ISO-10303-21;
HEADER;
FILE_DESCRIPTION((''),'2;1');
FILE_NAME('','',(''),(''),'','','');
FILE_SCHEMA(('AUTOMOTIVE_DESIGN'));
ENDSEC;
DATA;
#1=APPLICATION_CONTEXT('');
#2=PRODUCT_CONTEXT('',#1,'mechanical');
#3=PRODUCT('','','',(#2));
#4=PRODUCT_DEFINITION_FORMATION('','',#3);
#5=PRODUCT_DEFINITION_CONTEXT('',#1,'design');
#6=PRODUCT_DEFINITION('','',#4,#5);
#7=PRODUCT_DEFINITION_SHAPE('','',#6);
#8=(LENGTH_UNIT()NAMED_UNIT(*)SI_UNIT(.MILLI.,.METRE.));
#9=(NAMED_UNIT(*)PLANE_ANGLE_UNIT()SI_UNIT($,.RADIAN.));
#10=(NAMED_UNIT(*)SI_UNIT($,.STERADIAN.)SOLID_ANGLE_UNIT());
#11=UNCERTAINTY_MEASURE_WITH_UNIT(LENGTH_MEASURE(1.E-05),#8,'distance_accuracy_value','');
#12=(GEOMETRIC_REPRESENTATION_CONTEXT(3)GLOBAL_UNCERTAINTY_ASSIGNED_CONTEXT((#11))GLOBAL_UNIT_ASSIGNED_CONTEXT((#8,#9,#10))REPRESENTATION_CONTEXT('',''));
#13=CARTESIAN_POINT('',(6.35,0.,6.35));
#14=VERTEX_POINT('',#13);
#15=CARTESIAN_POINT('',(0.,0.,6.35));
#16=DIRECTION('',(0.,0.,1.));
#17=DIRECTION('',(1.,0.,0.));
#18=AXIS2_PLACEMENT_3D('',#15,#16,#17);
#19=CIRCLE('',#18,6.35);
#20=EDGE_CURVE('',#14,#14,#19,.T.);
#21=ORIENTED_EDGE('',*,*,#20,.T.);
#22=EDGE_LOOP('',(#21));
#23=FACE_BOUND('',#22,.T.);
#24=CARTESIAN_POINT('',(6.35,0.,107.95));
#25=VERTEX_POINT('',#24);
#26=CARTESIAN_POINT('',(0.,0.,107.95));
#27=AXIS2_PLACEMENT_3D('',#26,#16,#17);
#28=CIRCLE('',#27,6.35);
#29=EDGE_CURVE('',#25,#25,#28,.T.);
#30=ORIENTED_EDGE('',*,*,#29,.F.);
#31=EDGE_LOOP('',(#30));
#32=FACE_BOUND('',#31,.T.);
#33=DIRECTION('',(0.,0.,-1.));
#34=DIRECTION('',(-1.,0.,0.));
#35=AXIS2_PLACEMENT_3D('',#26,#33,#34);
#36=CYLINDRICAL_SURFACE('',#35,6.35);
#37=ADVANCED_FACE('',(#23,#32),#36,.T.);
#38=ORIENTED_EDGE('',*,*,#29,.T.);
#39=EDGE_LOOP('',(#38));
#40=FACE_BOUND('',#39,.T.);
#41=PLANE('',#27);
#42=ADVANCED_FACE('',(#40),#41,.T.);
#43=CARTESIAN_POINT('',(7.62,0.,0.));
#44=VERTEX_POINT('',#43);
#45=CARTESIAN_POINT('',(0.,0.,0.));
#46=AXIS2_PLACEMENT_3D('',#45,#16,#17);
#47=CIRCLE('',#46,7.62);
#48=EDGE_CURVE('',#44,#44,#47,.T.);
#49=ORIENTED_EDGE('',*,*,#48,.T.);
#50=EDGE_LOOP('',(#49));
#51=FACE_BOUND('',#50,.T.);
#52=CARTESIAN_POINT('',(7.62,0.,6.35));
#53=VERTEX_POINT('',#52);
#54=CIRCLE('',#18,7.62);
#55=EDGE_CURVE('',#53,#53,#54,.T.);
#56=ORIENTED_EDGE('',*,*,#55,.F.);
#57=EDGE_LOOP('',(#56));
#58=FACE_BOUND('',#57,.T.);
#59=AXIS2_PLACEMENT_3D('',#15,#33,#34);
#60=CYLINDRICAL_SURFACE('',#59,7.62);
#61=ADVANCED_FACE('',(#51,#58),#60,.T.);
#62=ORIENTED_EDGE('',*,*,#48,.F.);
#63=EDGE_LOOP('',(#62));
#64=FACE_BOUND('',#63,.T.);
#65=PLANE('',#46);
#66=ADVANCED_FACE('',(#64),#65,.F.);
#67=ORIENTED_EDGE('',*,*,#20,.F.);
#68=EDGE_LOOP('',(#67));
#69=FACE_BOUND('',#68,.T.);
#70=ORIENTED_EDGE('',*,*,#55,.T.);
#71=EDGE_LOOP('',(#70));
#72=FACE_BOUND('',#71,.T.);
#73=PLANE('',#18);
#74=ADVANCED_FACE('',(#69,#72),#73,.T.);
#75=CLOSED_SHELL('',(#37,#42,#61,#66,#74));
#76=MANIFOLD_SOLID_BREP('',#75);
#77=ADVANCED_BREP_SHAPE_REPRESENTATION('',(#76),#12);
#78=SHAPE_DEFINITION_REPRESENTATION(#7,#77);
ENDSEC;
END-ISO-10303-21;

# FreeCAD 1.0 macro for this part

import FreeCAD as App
import Part
import Sketcher
from FreeCAD import Vector
Q = App.Units.Quantity

doc = App.newDocument("Part")
body = doc.addObject("PartDesign::Body", "Body")

# Sketch on XY plane
sketch1 = body.newObject("Sketcher::SketchObject", "Sketch")
sketch1.AttachmentSupport = (doc.getObject("XY_Plane"), [""])
sketch1.MapMode = "FlatFace"
sketch1.addGeometry(Part.Circle(Vector(0, 0, 0), Vector(0, 0, 1), 7.62), False)
sketch1.addConstraint([
    Sketcher.Constraint("Coincident", 0, 3, -1, 1),
    Sketcher.Constraint("Diameter", 0, Q("0.6 in")),
])
pad1 = body.newObject("PartDesign::Pad", "Pad")
pad1.Profile = sketch1
pad1.Length = Q("0.25 in")

# Sketch on XY plane
sketch2 = body.newObject("Sketcher::SketchObject", "Sketch001")
sketch2.AttachmentSupport = (doc.getObject("XY_Plane"), [""])
sketch2.MapMode = "FlatFace"
sketch2.AttachmentOffset = App.Placement(Vector(0, 0, 0.25 * 25.4), App.Rotation())
sketch2.addGeometry(Part.Circle(Vector(0, 0, 0), Vector(0, 0, 1), 6.35), False)
sketch2.addConstraint([
    Sketcher.Constraint("Coincident", 0, 3, -1, 1),
    Sketcher.Constraint("Diameter", 0, Q("0.5 in")),
])
pad2 = body.newObject("PartDesign::Pad", "Pad001")
pad2.Profile = sketch2
pad2.Length = Q("4 in")

doc.recompute()
